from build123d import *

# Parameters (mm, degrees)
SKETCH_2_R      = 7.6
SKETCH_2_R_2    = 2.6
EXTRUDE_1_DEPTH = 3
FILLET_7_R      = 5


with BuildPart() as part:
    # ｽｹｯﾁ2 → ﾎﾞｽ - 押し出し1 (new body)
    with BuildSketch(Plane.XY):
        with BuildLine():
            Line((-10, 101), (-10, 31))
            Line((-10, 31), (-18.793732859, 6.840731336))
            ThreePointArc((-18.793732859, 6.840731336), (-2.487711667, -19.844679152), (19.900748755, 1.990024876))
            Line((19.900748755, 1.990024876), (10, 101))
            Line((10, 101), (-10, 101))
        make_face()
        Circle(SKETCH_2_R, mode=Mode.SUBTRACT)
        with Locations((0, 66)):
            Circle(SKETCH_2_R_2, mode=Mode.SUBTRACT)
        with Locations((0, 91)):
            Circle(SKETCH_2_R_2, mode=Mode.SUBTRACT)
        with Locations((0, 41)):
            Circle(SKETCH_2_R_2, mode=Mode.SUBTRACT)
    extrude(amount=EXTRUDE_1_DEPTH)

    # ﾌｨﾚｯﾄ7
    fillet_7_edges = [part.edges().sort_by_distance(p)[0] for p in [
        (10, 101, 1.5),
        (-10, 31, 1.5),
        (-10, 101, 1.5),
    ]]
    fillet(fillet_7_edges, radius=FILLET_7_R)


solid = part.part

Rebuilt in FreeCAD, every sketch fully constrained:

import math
import FreeCAD as App
import Part
import Sketcher

V = App.Vector


def edges_at(feature, points):
    """Names of the edges that pass closest to the given points."""
    edges = feature.Shape.Edges
    near = lambda p: min(range(len(edges)), key=lambda i: edges[i].distToShape(Part.Vertex(*p))[0])
    return sorted({f"Edge{near(p) + 1}" for p in points})

doc = App.newDocument("Part")
body = doc.addObject("PartDesign::Body", "Body")

# Sketch on XY plane
sketch1 = body.newObject("Sketcher::SketchObject", "Sketch")
sketch1.AttachmentSupport = (doc.getObject("XY_Plane"), [""])
sketch1.MapMode = "FlatFace"
sketch1.addGeometry(Part.LineSegment(V(-10, 101, 0), V(-10, 31, 0)), False)
sketch1.addGeometry(Part.LineSegment(V(-10, 31, 0), V(-18.8, 6.8, 0)), False)
sketch1.addGeometry(Part.ArcOfCircle(Part.Circle(V(0, 0, 0), V(0, 0, 1), 20), math.radians(160), math.radians(366)), False)
sketch1.addGeometry(Part.LineSegment(V(19.9, 2, 0), V(10, 101, 0)), False)
sketch1.addGeometry(Part.LineSegment(V(10, 101, 0), V(-10, 101, 0)), False)
sketch1.addGeometry(Part.Circle(V(0, 0, 0), V(0, 0, 1), 7.6), False)
sketch1.addGeometry(Part.Circle(V(0, 41, 0), V(0, 0, 1), 2.6), False)
sketch1.addGeometry(Part.Circle(V(0, 66, 0), V(0, 0, 1), 2.6), False)
sketch1.addGeometry(Part.Circle(V(0, 91, 0), V(0, 0, 1), 2.6), False)
sketch1.addConstraint(Sketcher.Constraint("Coincident", 0, 2, 1, 1))
sketch1.addConstraint(Sketcher.Constraint("Tangent", 1, 2, 2, 1))
sketch1.addConstraint(Sketcher.Constraint("Tangent", 2, 2, 3, 1))
sketch1.addConstraint(Sketcher.Constraint("Coincident", 3, 2, 4, 1))
sketch1.addConstraint(Sketcher.Constraint("Coincident", 4, 2, 0, 1))
sketch1.addConstraint(Sketcher.Constraint("Vertical", 0))
sketch1.addConstraint(Sketcher.Constraint("Horizontal", 4))
sketch1.addConstraint(Sketcher.Constraint("Coincident", 2, 3, -1, 1))
sketch1.addConstraint(Sketcher.Constraint("Coincident", 5, 3, -1, 1))
sketch1.addConstraint(Sketcher.Constraint("Equal", 6, 7))
sketch1.addConstraint(Sketcher.Constraint("Equal", 7, 8))
sketch1.addConstraint(Sketcher.Constraint("PointOnObject", 6, 3, -2))
sketch1.addConstraint(Sketcher.Constraint("PointOnObject", 7, 3, -2))
sketch1.addConstraint(Sketcher.Constraint("PointOnObject", 8, 3, -2))
sketch1.addConstraint(Sketcher.Constraint("Radius", 2, 20.0))
sketch1.addConstraint(Sketcher.Constraint("Diameter", 5, 15.2))
sketch1.addConstraint(Sketcher.Constraint("Diameter", 6, 5.2))
sketch1.addConstraint(Sketcher.Constraint("DistanceX", 4, 2, 4, 1, 20.0))
sketch1.addConstraint(Sketcher.Constraint("DistanceY", 0, 2, 0, 1, 70.0))
sketch1.addConstraint(Sketcher.Constraint("DistanceY", -1, 1, 6, 3, 41.0))
sketch1.addConstraint(Sketcher.Constraint("DistanceY", -1, 1, 7, 3, 66.0))
sketch1.addConstraint(Sketcher.Constraint("DistanceY", -1, 1, 8, 3, 91.0))
sketch1.addConstraint(Sketcher.Constraint("DistanceX", 0, 2, -1, 1, 10.0))
sketch1.addConstraint(Sketcher.Constraint("DistanceY", -1, 1, 0, 2, 31.0))
pad1 = body.newObject("PartDesign::Pad", "Pad")
pad1.Profile = sketch1
pad1.Length = 3
doc.recompute()

fillet = body.newObject("PartDesign::Fillet", "Fillet")
fillet.Base = (pad1, edges_at(pad1, [(10, 101, 1.5), (-10, 31, 1.5), (-10, 101, 1.5)]))
fillet.Radius = 5

doc.recompute()
